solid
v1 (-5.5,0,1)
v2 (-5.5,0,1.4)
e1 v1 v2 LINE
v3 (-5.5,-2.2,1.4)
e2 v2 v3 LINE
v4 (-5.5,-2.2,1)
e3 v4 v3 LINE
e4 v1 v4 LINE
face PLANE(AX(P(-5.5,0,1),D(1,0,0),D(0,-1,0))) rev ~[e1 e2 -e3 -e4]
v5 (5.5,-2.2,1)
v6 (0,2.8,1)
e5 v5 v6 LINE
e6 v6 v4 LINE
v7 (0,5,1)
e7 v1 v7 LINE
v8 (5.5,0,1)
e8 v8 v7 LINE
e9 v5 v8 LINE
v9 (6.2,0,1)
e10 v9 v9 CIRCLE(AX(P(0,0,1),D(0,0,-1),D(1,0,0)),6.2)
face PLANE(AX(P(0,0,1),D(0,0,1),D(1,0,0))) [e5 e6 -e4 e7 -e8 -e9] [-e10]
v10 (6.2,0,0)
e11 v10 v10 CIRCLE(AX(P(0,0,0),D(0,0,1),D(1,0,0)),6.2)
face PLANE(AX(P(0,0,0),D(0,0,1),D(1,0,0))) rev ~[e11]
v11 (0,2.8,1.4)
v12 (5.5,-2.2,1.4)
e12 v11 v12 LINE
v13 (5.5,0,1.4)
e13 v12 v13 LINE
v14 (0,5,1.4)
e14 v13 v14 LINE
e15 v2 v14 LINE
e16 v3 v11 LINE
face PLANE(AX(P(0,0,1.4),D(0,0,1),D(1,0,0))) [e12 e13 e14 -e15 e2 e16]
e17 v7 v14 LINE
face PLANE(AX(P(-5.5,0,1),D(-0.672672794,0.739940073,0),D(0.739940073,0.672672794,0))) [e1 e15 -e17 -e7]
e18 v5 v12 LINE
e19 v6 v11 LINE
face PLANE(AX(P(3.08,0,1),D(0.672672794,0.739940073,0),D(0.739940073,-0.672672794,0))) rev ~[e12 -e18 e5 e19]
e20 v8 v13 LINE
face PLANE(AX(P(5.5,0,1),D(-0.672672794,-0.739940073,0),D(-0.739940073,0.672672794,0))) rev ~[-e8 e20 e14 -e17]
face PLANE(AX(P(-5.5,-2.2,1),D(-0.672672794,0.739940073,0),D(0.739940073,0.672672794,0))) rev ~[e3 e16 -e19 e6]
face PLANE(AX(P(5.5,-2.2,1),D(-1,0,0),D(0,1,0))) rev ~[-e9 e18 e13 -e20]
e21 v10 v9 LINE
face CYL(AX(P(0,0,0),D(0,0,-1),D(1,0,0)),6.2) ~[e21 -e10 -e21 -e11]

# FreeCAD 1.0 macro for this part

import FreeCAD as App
import Part
import Sketcher
Q = App.Units.Quantity

doc = App.newDocument("Part")
body = doc.addObject("PartDesign::Body", "Body")

# Sketch on XY plane
sketch1 = body.newObject("Sketcher::SketchObject", "Sketch")
sketch1.AttachmentSupport = (doc.getObject("XY_Plane"), [""])
sketch1.MapMode = "FlatFace"
sketch1.addGeometry(Part.Circle(App.Vector(0, 0, 0), App.Vector(0, 0, 1), 6.2), False)
sketch1.addConstraint([
    Sketcher.Constraint("Coincident", 0, 3, -1, 1),
    Sketcher.Constraint("Diameter", 0, Q("12.4 mm")),
])
pad1 = body.newObject("PartDesign::Pad", "Pad")
pad1.Profile = sketch1
pad1.Length = 1

# Sketch on XY plane
sketch2 = body.newObject("Sketcher::SketchObject", "Sketch001")
sketch2.AttachmentSupport = (doc.getObject("XY_Plane"), [""])
sketch2.MapMode = "FlatFace"
sketch2.AttachmentOffset = App.Placement(App.Vector(0, 0, 1), App.Rotation())
sketch2.addGeometry([
    Part.LineSegment(App.Vector(0, 5, 0), App.Vector(-5.5, 0, 0)),  # 0
    Part.LineSegment(App.Vector(-5.5, 0, 0), App.Vector(-5.5, -2.2, 0)),  # 1
    Part.LineSegment(App.Vector(-5.5, -2.2, 0), App.Vector(0, 2.8, 0)),  # 2
    Part.LineSegment(App.Vector(0, 2.8, 0), App.Vector(5.5, -2.2, 0)),  # 3
    Part.LineSegment(App.Vector(5.5, -2.2, 0), App.Vector(5.5, 0, 0)),  # 4
    Part.LineSegment(App.Vector(5.5, 0, 0), App.Vector(0, 5, 0)),  # 5
], False)
sketch2.addConstraint([
    Sketcher.Constraint("Coincident", 0, 2, 1, 1),
    Sketcher.Constraint("Coincident", 1, 2, 2, 1),
    Sketcher.Constraint("Coincident", 2, 2, 3, 1),
    Sketcher.Constraint("Coincident", 3, 2, 4, 1),
    Sketcher.Constraint("Coincident", 4, 2, 5, 1),
    Sketcher.Constraint("Coincident", 5, 2, 0, 1),
    Sketcher.Constraint("Vertical", 1),
    Sketcher.Constraint("Vertical", 4),
    Sketcher.Constraint("Symmetric", 0, 2, 4, 2, -1, 1),
    Sketcher.Constraint("PointOnObject", 0, 2, -1),
    Sketcher.Constraint("PointOnObject", 2, 2, -2),
    Sketcher.Constraint("PointOnObject", 5, 2, -2),
    Sketcher.Constraint("Parallel", 0, 2),
    Sketcher.Constraint("Parallel", 3, 5),
    Sketcher.Constraint("DistanceY", 1, 2, 1, 1, Q("2.2 mm")),
    Sketcher.Constraint("DistanceY", -1, 1, 5, 2, Q("5 mm")),
    Sketcher.Constraint("DistanceX", 0, 2, -1, 1, Q("5.5 mm")),
])
pad2 = body.newObject("PartDesign::Pad", "Pad001")
pad2.Profile = sketch2
pad2.Length = 0.4

doc.recompute()
